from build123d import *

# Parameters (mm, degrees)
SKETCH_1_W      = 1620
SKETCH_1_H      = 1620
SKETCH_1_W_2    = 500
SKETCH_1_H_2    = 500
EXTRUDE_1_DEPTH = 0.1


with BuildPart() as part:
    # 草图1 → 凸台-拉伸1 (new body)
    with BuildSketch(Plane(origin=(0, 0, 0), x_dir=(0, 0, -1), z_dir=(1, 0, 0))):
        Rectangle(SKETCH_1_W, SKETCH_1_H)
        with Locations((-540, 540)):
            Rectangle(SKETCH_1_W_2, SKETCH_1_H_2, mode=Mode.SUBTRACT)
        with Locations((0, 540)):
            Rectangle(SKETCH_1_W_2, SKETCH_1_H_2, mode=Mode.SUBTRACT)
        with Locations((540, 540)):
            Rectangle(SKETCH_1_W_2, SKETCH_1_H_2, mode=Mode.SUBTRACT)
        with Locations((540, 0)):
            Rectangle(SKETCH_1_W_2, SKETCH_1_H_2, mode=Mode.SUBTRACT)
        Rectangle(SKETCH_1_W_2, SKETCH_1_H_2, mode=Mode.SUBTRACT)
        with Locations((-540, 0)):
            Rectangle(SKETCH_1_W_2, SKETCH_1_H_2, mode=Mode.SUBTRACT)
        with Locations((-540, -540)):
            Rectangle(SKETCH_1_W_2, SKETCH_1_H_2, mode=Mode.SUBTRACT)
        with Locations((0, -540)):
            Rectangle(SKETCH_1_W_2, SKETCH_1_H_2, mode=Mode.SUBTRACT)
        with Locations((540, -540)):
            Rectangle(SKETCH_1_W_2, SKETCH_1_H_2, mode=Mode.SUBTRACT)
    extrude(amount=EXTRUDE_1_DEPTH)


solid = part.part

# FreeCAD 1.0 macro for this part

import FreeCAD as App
import Part
import Sketcher
Q = App.Units.Quantity

doc = App.newDocument("Part")
params = doc.addObject("Spreadsheet::Sheet", "Params")
for row, (alias, value) in enumerate([
    ("sketch1_width", "1620 mm"),
    ("sketch1_width2", "500 mm"),
    ("pad1_length", "0.1 mm"),
], start=1):
    params.set(f"A{row}", alias)
    params.set(f"B{row}", "=" + value)
    params.setAlias(f"B{row}", alias)

body = doc.addObject("PartDesign::Body", "Body")

sketch1 = body.newObject("Sketcher::SketchObject", "Sketch")
sketch1.AttachmentSupport = (doc.getObject("YZ_Plane"), [""])
sketch1.MapMode = "FlatFace"
sketch1.addGeometry(Part.LineSegment(App.Vector(810, 810, 0), App.Vector(-810, 810, 0)), False)
sketch1.addGeometry(Part.LineSegment(App.Vector(-810, 810, 0), App.Vector(-810, -810, 0)), False)
sketch1.addGeometry(Part.LineSegment(App.Vector(-810, -810, 0), App.Vector(810, -810, 0)), False)
sketch1.addGeometry(Part.LineSegment(App.Vector(810, -810, 0), App.Vector(810, 810, 0)), False)
sketch1.addGeometry(Part.LineSegment(App.Vector(-790, 290, 0), App.Vector(-790, 790, 0)), False)
sketch1.addGeometry(Part.LineSegment(App.Vector(-790, 790, 0), App.Vector(-290, 790, 0)), False)
sketch1.addGeometry(Part.LineSegment(App.Vector(-290, 790, 0), App.Vector(-290, 290, 0)), False)
sketch1.addGeometry(Part.LineSegment(App.Vector(-290, 290, 0), App.Vector(-790, 290, 0)), False)
sketch1.addGeometry(Part.LineSegment(App.Vector(-790, -250, 0), App.Vector(-790, 250, 0)), False)
sketch1.addGeometry(Part.LineSegment(App.Vector(-790, 250, 0), App.Vector(-290, 250, 0)), False)
sketch1.addGeometry(Part.LineSegment(App.Vector(-290, 250, 0), App.Vector(-290, -250, 0)), False)
sketch1.addGeometry(Part.LineSegment(App.Vector(-290, -250, 0), App.Vector(-790, -250, 0)), False)
sketch1.addGeometry(Part.LineSegment(App.Vector(-790, -790, 0), App.Vector(-790, -290, 0)), False)
sketch1.addGeometry(Part.LineSegment(App.Vector(-790, -290, 0), App.Vector(-290, -290, 0)), False)
sketch1.addGeometry(Part.LineSegment(App.Vector(-290, -290, 0), App.Vector(-290, -790, 0)), False)
sketch1.addGeometry(Part.LineSegment(App.Vector(-290, -790, 0), App.Vector(-790, -790, 0)), False)
sketch1.addGeometry(Part.LineSegment(App.Vector(-250, 290, 0), App.Vector(-250, 790, 0)), False)
sketch1.addGeometry(Part.LineSegment(App.Vector(-250, 790, 0), App.Vector(250, 790, 0)), False)
sketch1.addGeometry(Part.LineSegment(App.Vector(250, 790, 0), App.Vector(250, 290, 0)), False)
sketch1.addGeometry(Part.LineSegment(App.Vector(250, 290, 0), App.Vector(-250, 290, 0)), False)
sketch1.addGeometry(Part.LineSegment(App.Vector(290, 290, 0), App.Vector(290, 790, 0)), False)
sketch1.addGeometry(Part.LineSegment(App.Vector(290, 790, 0), App.Vector(790, 790, 0)), False)
sketch1.addGeometry(Part.LineSegment(App.Vector(790, 790, 0), App.Vector(790, 290, 0)), False)
sketch1.addGeometry(Part.LineSegment(App.Vector(790, 290, 0), App.Vector(290, 290, 0)), False)
sketch1.addGeometry(Part.LineSegment(App.Vector(-250, -250, 0), App.Vector(-250, 250, 0)), False)
sketch1.addGeometry(Part.LineSegment(App.Vector(-250, 250, 0), App.Vector(250, 250, 0)), False)
sketch1.addGeometry(Part.LineSegment(App.Vector(250, 250, 0), App.Vector(250, -250, 0)), False)
sketch1.addGeometry(Part.LineSegment(App.Vector(250, -250, 0), App.Vector(-250, -250, 0)), False)
sketch1.addGeometry(Part.LineSegment(App.Vector(-250, -790, 0), App.Vector(-250, -290, 0)), False)
sketch1.addGeometry(Part.LineSegment(App.Vector(-250, -290, 0), App.Vector(250, -290, 0)), False)
sketch1.addGeometry(Part.LineSegment(App.Vector(250, -290, 0), App.Vector(250, -790, 0)), False)
sketch1.addGeometry(Part.LineSegment(App.Vector(250, -790, 0), App.Vector(-250, -790, 0)), False)
sketch1.addGeometry(Part.LineSegment(App.Vector(290, -250, 0), App.Vector(290, 250, 0)), False)
sketch1.addGeometry(Part.LineSegment(App.Vector(290, 250, 0), App.Vector(790, 250, 0)), False)
sketch1.addGeometry(Part.LineSegment(App.Vector(790, 250, 0), App.Vector(790, -250, 0)), False)
sketch1.addGeometry(Part.LineSegment(App.Vector(790, -250, 0), App.Vector(290, -250, 0)), False)
sketch1.addGeometry(Part.LineSegment(App.Vector(290, -790, 0), App.Vector(290, -290, 0)), False)
sketch1.addGeometry(Part.LineSegment(App.Vector(290, -290, 0), App.Vector(790, -290, 0)), False)
sketch1.addGeometry(Part.LineSegment(App.Vector(790, -290, 0), App.Vector(790, -790, 0)), False)
sketch1.addGeometry(Part.LineSegment(App.Vector(790, -790, 0), App.Vector(290, -790, 0)), False)
sketch1.addConstraint(Sketcher.Constraint("Coincident", 0, 2, 1, 1))
sketch1.addConstraint(Sketcher.Constraint("Coincident", 1, 2, 2, 1))
sketch1.addConstraint(Sketcher.Constraint("Coincident", 2, 2, 3, 1))
sketch1.addConstraint(Sketcher.Constraint("Coincident", 3, 2, 0, 1))
sketch1.addConstraint(Sketcher.Constraint("Coincident", 4, 2, 5, 1))
sketch1.addConstraint(Sketcher.Constraint("Coincident", 5, 2, 6, 1))
sketch1.addConstraint(Sketcher.Constraint("Coincident", 6, 2, 7, 1))
sketch1.addConstraint(Sketcher.Constraint("Coincident", 7, 2, 4, 1))
sketch1.addConstraint(Sketcher.Constraint("Coincident", 8, 2, 9, 1))
sketch1.addConstraint(Sketcher.Constraint("Coincident", 9, 2, 10, 1))
sketch1.addConstraint(Sketcher.Constraint("Coincident", 10, 2, 11, 1))
sketch1.addConstraint(Sketcher.Constraint("Coincident", 11, 2, 8, 1))
sketch1.addConstraint(Sketcher.Constraint("Coincident", 12, 2, 13, 1))
sketch1.addConstraint(Sketcher.Constraint("Coincident", 13, 2, 14, 1))
sketch1.addConstraint(Sketcher.Constraint("Coincident", 14, 2, 15, 1))
sketch1.addConstraint(Sketcher.Constraint("Coincident", 15, 2, 12, 1))
sketch1.addConstraint(Sketcher.Constraint("Coincident", 16, 2, 17, 1))
sketch1.addConstraint(Sketcher.Constraint("Coincident", 17, 2, 18, 1))
sketch1.addConstraint(Sketcher.Constraint("Coincident", 18, 2, 19, 1))
sketch1.addConstraint(Sketcher.Constraint("Coincident", 19, 2, 16, 1))
sketch1.addConstraint(Sketcher.Constraint("Coincident", 20, 2, 21, 1))
sketch1.addConstraint(Sketcher.Constraint("Coincident", 21, 2, 22, 1))
sketch1.addConstraint(Sketcher.Constraint("Coincident", 22, 2, 23, 1))
sketch1.addConstraint(Sketcher.Constraint("Coincident", 23, 2, 20, 1))
sketch1.addConstraint(Sketcher.Constraint("Coincident", 24, 2, 25, 1))
sketch1.addConstraint(Sketcher.Constraint("Coincident", 25, 2, 26, 1))
sketch1.addConstraint(Sketcher.Constraint("Coincident", 26, 2, 27, 1))
sketch1.addConstraint(Sketcher.Constraint("Coincident", 27, 2, 24, 1))
sketch1.addConstraint(Sketcher.Constraint("Coincident", 28, 2, 29, 1))
sketch1.addConstraint(Sketcher.Constraint("Coincident", 29, 2, 30, 1))
sketch1.addConstraint(Sketcher.Constraint("Coincident", 30, 2, 31, 1))
sketch1.addConstraint(Sketcher.Constraint("Coincident", 31, 2, 28, 1))
sketch1.addConstraint(Sketcher.Constraint("Coincident", 32, 2, 33, 1))
sketch1.addConstraint(Sketcher.Constraint("Coincident", 33, 2, 34, 1))
sketch1.addConstraint(Sketcher.Constraint("Coincident", 34, 2, 35, 1))
sketch1.addConstraint(Sketcher.Constraint("Coincident", 35, 2, 32, 1))
sketch1.addConstraint(Sketcher.Constraint("Coincident", 36, 2, 37, 1))
sketch1.addConstraint(Sketcher.Constraint("Coincident", 37, 2, 38, 1))
sketch1.addConstraint(Sketcher.Constraint("Coincident", 38, 2, 39, 1))
sketch1.addConstraint(Sketcher.Constraint("Coincident", 39, 2, 36, 1))
sketch1.addConstraint(Sketcher.Constraint("Horizontal", 0))
sketch1.addConstraint(Sketcher.Constraint("Vertical", 1))
sketch1.addConstraint(Sketcher.Constraint("Horizontal", 2))
sketch1.addConstraint(Sketcher.Constraint("Vertical", 3))
sketch1.addConstraint(Sketcher.Constraint("Vertical", 4))
sketch1.addConstraint(Sketcher.Constraint("Horizontal", 5))
sketch1.addConstraint(Sketcher.Constraint("Vertical", 6))
sketch1.addConstraint(Sketcher.Constraint("Horizontal", 7))
sketch1.addConstraint(Sketcher.Constraint("Vertical", 8))
sketch1.addConstraint(Sketcher.Constraint("Horizontal", 9))
sketch1.addConstraint(Sketcher.Constraint("Vertical", 10))
sketch1.addConstraint(Sketcher.Constraint("Horizontal", 11))
sketch1.addConstraint(Sketcher.Constraint("Vertical", 12))
sketch1.addConstraint(Sketcher.Constraint("Horizontal", 13))
sketch1.addConstraint(Sketcher.Constraint("Vertical", 14))
sketch1.addConstraint(Sketcher.Constraint("Horizontal", 15))
sketch1.addConstraint(Sketcher.Constraint("Vertical", 16))
sketch1.addConstraint(Sketcher.Constraint("Horizontal", 17))
sketch1.addConstraint(Sketcher.Constraint("Vertical", 18))
sketch1.addConstraint(Sketcher.Constraint("Horizontal", 19))
sketch1.addConstraint(Sketcher.Constraint("Vertical", 20))
sketch1.addConstraint(Sketcher.Constraint("Horizontal", 21))
sketch1.addConstraint(Sketcher.Constraint("Vertical", 22))
sketch1.addConstraint(Sketcher.Constraint("Horizontal", 23))
sketch1.addConstraint(Sketcher.Constraint("Vertical", 24))
sketch1.addConstraint(Sketcher.Constraint("Horizontal", 25))
sketch1.addConstraint(Sketcher.Constraint("Vertical", 26))
sketch1.addConstraint(Sketcher.Constraint("Horizontal", 27))
sketch1.addConstraint(Sketcher.Constraint("Vertical", 28))
sketch1.addConstraint(Sketcher.Constraint("Horizontal", 29))
sketch1.addConstraint(Sketcher.Constraint("Vertical", 30))
sketch1.addConstraint(Sketcher.Constraint("Horizontal", 31))
sketch1.addConstraint(Sketcher.Constraint("Vertical", 32))
sketch1.addConstraint(Sketcher.Constraint("Horizontal", 33))
sketch1.addConstraint(Sketcher.Constraint("Vertical", 34))
sketch1.addConstraint(Sketcher.Constraint("Horizontal", 35))
sketch1.addConstraint(Sketcher.Constraint("Vertical", 36))
sketch1.addConstraint(Sketcher.Constraint("Horizontal", 37))
sketch1.addConstraint(Sketcher.Constraint("Vertical", 38))
sketch1.addConstraint(Sketcher.Constraint("Horizontal", 39))
sketch1.addConstraint(Sketcher.Constraint("Symmetric", 0, 2, 2, 2, -1, 1))
sketch1.addConstraint(Sketcher.Constraint("Symmetric", 14, 2, 20, 2, -1, 1))
sketch1.addConstraint(Sketcher.Constraint("Symmetric", 12, 2, 22, 2, -1, 1))
sketch1.addConstraint(Sketcher.Constraint("Symmetric", 24, 2, 26, 2, -1, 1))
sketch1.addConstraint(Sketcher.Constraint("Symmetric", 18, 2, 28, 2, -1, 1))
sketch1.addConstraint(Sketcher.Constraint("Symmetric", 16, 2, 30, 2, -1, 1))
sketch1.addConstraint(Sketcher.Constraint("Symmetric", 10, 2, 32, 2, -1, 1))
sketch1.addConstraint(Sketcher.Constraint("Symmetric", 8, 2, 34, 2, -1, 1))
sketch1.addConstraint(Sketcher.Constraint("Symmetric", 6, 2, 36, 2, -1, 1))
sketch1.addConstraint(Sketcher.Constraint("Symmetric", 4, 2, 38, 2, -1, 1))
sketch1.addConstraint(Sketcher.Constraint("Symmetric", 5, 2, 20, 2, -2))
sketch1.addConstraint(Sketcher.Constraint("Symmetric", 7, 2, 22, 2, -2))
sketch1.addConstraint(Sketcher.Constraint("Horizontal", 5, 2, 16, 2))
sketch1.addConstraint(Sketcher.Constraint("Horizontal", 7, 2, 18, 2))
sketch1.addConstraint(Sketcher.Constraint("Horizontal", 9, 2, 24, 2))
sketch1.addConstraint(Sketcher.Constraint("Horizontal", 11, 2, 26, 2))
sketch1.addConstraint(Sketcher.Constraint("Vertical", 7, 2, 8, 2))
sketch1.addConstraint(Sketcher.Constraint("Vertical", 6, 2, 9, 2))
sketch1.addConstraint(Sketcher.Constraint("Vertical", 19, 2, 24, 2))
sketch1.addConstraint(Sketcher.Constraint("Vertical", 18, 2, 25, 2))
sketch1.addConstraint(Sketcher.Constraint("Equal", 15, 17))
sketch1.addConstraint(Sketcher.Constraint("Equal", 2, 1))
sketch1.addConstraint(Sketcher.Constraint("Equal", 39, 4))
sketch1.addConstraint(Sketcher.Constraint("Equal", 6, 8))
sketch1.addConstraint(Sketcher.Constraint("DistanceX", 0, 2, 0, 1, Q("1620 mm")))
sketch1.addConstraint(Sketcher.Constraint("DistanceX", 5, 1, 5, 2, Q("500 mm")))
sketch1.addConstraint(Sketcher.Constraint("DistanceX", 4, 2, -1, 1, Q("790 mm")))
sketch1.addConstraint(Sketcher.Constraint("DistanceY", -1, 1, 4, 2, Q("790 mm")))
sketch1.setExpression("Constraints[104]", "Params.sketch1_width")
sketch1.setExpression("Constraints[105]", "Params.sketch1_width2")
pad1 = body.newObject("PartDesign::Pad", "Pad")
pad1.Profile = sketch1
pad1.setExpression("Length", "Params.pad1_length")

doc.recompute()
